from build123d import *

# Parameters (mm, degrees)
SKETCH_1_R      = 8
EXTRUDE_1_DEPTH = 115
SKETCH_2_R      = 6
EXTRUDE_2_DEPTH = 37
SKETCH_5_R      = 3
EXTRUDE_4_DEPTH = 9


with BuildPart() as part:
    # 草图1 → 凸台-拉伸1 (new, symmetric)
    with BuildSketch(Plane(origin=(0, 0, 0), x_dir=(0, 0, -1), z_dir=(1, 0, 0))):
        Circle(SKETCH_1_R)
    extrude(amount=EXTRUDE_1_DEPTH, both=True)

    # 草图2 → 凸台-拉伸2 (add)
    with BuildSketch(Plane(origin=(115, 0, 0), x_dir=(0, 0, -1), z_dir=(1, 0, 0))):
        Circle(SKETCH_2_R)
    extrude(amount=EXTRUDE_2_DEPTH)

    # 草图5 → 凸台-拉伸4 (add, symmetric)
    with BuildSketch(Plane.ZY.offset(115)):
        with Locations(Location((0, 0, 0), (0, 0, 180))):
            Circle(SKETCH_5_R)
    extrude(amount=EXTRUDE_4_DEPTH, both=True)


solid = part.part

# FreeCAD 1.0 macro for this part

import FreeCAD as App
import Part
import Sketcher

V = App.Vector
Q = App.Units.Quantity

doc = App.newDocument("Part")
body = doc.addObject("PartDesign::Body", "Body")

# Sketch on YZ plane
sketch1 = body.newObject("Sketcher::SketchObject", "Sketch")
sketch1.AttachmentSupport = (doc.getObject("YZ_Plane"), [""])
sketch1.MapMode = "FlatFace"
sketch1.addGeometry(Part.Circle(V(0, 0, 0), V(0, 0, 1), 8), False)
sketch1.addConstraint(Sketcher.Constraint("Coincident", 0, 3, -1, 1))
sketch1.addConstraint(Sketcher.Constraint("Diameter", 0, Q("16 mm")))
pad1 = body.newObject("PartDesign::Pad", "Pad")
pad1.Profile = sketch1
pad1.Length = 230
pad1.Midplane = True

# Sketch on YZ plane
sketch2 = body.newObject("Sketcher::SketchObject", "Sketch001")
sketch2.AttachmentSupport = (doc.getObject("YZ_Plane"), [""])
sketch2.MapMode = "FlatFace"
sketch2.AttachmentOffset = App.Placement(V(0, 0, 115), App.Rotation())
sketch2.addGeometry(Part.Circle(V(0, 0, 0), V(0, 0, 1), 6), False)
sketch2.addConstraint(Sketcher.Constraint("Coincident", 0, 3, -1, 1))
sketch2.addConstraint(Sketcher.Constraint("Diameter", 0, Q("12 mm")))
pad2 = body.newObject("PartDesign::Pad", "Pad001")
pad2.Profile = sketch2
pad2.Length = 37

# Sketch on YZ plane
sketch3 = body.newObject("Sketcher::SketchObject", "Sketch002")
sketch3.AttachmentSupport = (doc.getObject("YZ_Plane"), [""])
sketch3.MapMode = "FlatFace"
sketch3.AttachmentOffset = App.Placement(V(0, 0, -115), App.Rotation())
sketch3.addGeometry(Part.Circle(V(0, 0, 0), V(0, 0, 1), 3), False)
sketch3.addConstraint(Sketcher.Constraint("Coincident", 0, 3, -1, 1))
sketch3.addConstraint(Sketcher.Constraint("Diameter", 0, Q("6 mm")))
pad3 = body.newObject("PartDesign::Pad", "Pad002")
pad3.Profile = sketch3
pad3.Length = 18
pad3.Midplane = True

doc.recompute()
